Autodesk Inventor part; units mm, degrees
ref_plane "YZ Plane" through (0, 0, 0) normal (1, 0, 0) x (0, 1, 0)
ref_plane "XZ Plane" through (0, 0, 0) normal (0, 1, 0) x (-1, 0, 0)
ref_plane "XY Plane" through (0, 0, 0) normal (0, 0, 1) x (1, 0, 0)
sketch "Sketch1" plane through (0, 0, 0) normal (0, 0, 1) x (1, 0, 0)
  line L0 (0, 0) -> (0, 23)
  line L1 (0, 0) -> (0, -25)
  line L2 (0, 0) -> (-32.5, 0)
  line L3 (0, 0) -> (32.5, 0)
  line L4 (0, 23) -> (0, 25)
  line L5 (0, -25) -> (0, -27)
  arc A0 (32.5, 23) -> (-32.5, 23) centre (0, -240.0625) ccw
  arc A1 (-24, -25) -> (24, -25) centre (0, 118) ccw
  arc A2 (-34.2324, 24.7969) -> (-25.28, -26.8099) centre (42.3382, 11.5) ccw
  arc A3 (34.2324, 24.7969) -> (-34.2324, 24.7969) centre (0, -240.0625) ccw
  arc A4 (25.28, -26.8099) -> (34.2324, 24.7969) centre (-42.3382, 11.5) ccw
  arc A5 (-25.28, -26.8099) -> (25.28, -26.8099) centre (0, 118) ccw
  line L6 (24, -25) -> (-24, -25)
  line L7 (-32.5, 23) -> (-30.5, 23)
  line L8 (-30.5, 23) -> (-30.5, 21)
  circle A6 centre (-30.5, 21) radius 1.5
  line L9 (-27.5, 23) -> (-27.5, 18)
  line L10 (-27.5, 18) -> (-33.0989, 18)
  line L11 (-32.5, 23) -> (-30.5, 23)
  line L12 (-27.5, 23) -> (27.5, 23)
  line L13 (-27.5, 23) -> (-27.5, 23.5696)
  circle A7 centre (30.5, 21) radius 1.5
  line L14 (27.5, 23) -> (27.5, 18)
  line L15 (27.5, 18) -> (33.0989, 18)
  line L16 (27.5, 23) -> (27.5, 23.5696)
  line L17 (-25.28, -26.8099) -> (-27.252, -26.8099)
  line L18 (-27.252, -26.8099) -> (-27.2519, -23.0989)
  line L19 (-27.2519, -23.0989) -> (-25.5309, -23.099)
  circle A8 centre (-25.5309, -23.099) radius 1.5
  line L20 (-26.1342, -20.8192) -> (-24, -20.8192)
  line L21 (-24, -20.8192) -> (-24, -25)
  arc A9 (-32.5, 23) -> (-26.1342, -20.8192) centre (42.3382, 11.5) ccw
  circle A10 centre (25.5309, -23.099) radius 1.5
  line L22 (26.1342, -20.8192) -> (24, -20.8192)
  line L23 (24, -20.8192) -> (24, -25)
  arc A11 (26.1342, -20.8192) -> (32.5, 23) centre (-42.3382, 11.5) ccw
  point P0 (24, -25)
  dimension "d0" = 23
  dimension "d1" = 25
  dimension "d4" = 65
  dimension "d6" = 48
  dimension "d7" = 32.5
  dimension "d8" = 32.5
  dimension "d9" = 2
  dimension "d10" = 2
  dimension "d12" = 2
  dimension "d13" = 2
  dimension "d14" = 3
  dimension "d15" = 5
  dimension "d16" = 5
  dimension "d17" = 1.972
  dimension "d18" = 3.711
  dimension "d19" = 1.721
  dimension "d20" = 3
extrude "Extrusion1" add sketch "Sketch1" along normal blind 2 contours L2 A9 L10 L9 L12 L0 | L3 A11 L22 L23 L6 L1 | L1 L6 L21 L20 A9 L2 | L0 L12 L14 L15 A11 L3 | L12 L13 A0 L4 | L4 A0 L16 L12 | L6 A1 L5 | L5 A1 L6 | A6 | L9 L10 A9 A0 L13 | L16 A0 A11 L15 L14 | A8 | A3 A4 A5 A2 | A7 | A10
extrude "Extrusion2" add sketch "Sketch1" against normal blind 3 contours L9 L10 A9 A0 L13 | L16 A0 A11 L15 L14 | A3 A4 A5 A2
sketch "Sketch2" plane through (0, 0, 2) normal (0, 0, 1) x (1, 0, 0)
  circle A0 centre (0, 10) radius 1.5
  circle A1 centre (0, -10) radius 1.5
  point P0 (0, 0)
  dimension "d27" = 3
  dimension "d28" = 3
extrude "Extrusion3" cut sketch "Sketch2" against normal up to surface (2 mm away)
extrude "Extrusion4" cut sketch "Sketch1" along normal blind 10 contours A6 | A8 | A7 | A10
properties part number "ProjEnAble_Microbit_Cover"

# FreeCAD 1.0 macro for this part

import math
import FreeCAD as App
import Part
import Sketcher

V = App.Vector

doc = App.newDocument("Part")
body = doc.addObject("PartDesign::Body", "Body")

# Sketch on XY plane
sketch1 = body.newObject("Sketcher::SketchObject", "Sketch")
sketch1.AttachmentSupport = (doc.getObject("XY_Plane"), [""])
sketch1.MapMode = "FlatFace"
sketch1.addGeometry([
    Part.ArcOfCircle(Part.Circle(V(0, -240.0625, 0), V(0, 0, 1), 267.062463), math.radians(82.635494), math.radians(97.364506)),  # 0
    Part.ArcOfCircle(Part.Circle(V(42.3382, 11.5, 0), V(0, 0, 1), 77.716564), math.radians(170.148521), math.radians(206.435708)),  # 1
    Part.ArcOfCircle(Part.Circle(V(42.3382, 11.5, 0), V(0, 0, 1), 77.716564), math.radians(-153.564292), math.radians(-150.465759)),  # 2
    Part.ArcOfCircle(Part.Circle(V(0, 118, 0), V(0, 0, 1), 146.999951), math.radians(-99.902544), math.radians(-80.097456)),  # 3
    Part.ArcOfCircle(Part.Circle(V(-42.3382, 11.5, 0), V(0, 0, 1), 77.716597), math.radians(-29.534241), math.radians(9.851479)),  # 4
], False)
sketch1.addConstraint([
    Sketcher.Constraint("Coincident", 0, 2, 1, 1),
    Sketcher.Constraint("Tangent", 1, 2, 2, 1),
    Sketcher.Constraint("Coincident", 2, 2, 3, 1),
    Sketcher.Constraint("Coincident", 3, 2, 4, 1),
    Sketcher.Constraint("Coincident", 4, 2, 0, 1),
    Sketcher.Constraint("Equal", 1, 2),
    Sketcher.Constraint("Equal", 2, 4),
    Sketcher.Constraint("Symmetric", 1, 3, 4, 3, -2),
    Sketcher.Constraint("PointOnObject", 0, 3, -2),
    Sketcher.Constraint("PointOnObject", 3, 3, -2),
    Sketcher.Constraint("Radius", 3, 147.0),
    Sketcher.Constraint("DistanceY", -1, 1, 3, 3, 118.0),
    Sketcher.Constraint("DistanceX", 1, 2, 2, 2, 1.972),
    Sketcher.Constraint("DistanceY", -1, 1, 1, 3, 11.5),
    Sketcher.Constraint("Radius", 0, 267.0625),
    Sketcher.Constraint("Radius", 1, 77.7166),
    Sketcher.Constraint("DistanceX", 2, 2, -1, 1, 25.28),
    Sketcher.Constraint("DistanceY", -1, 1, 0, 2, 24.797),
])
pad1 = body.newObject("PartDesign::Pad", "Pad")
pad1.Profile = sketch1
pad1.Length = 2

# Sketch on XY plane
sketch2 = body.newObject("Sketcher::SketchObject", "Sketch001")
sketch2.AttachmentSupport = (doc.getObject("XY_Plane"), [""])
sketch2.MapMode = "FlatFace"
sketch2.addGeometry([
    Part.ArcOfCircle(Part.Circle(V(0, -240.0625, 0), V(0, 0, 1), 267.062463), math.radians(82.635494), math.radians(97.364506)),  # 0
    Part.ArcOfCircle(Part.Circle(V(42.3382, 11.5, 0), V(0, 0, 1), 77.716564), math.radians(170.148521), math.radians(206.435708)),  # 1
    Part.ArcOfCircle(Part.Circle(V(42.3382, 11.5, 0), V(0, 0, 1), 77.716564), math.radians(-153.564292), math.radians(-150.465759)),  # 2
    Part.ArcOfCircle(Part.Circle(V(0, 118, 0), V(0, 0, 1), 146.999951), math.radians(-99.902544), math.radians(-80.097456)),  # 3
    Part.ArcOfCircle(Part.Circle(V(-42.3382, 11.5, 0), V(0, 0, 1), 77.716597), math.radians(-29.534241), math.radians(9.851479)),  # 4
    Part.LineSegment(V(-27.5, 18, 0), V(-27.5, 23.5696, 0)),  # 5
    Part.ArcOfCircle(Part.Circle(V(0, -240.0625, 0), V(0, 0, 1), 265.0625), math.radians(84.044898), math.radians(95.955102)),  # 6
    Part.LineSegment(V(27.5, 23.5696, 0), V(27.5, 18, 0)),  # 7
    Part.LineSegment(V(27.5, 18, 0), V(33.0989, 18, 0)),  # 8
    Part.ArcOfCircle(Part.Circle(V(-42.3382, 11.5, 0), V(0, 0, 1), 75.716578), math.radians(-25.267466), math.radians(4.924699)),  # 9
    Part.LineSegment(V(26.1342, -20.8192, 0), V(24, -20.8192, 0)),  # 10
    Part.LineSegment(V(24, -20.8192, 0), V(24, -25, 0)),  # 11
    Part.ArcOfCircle(Part.Circle(V(0, 118, 0), V(0, 0, 1), 145), math.radians(-99.527283), math.radians(-80.472717)),  # 12
    Part.LineSegment(V(-24, -25, 0), V(-24, -20.8192, 0)),  # 13
    Part.LineSegment(V(-24, -20.8192, 0), V(-26.1342, -20.8192, 0)),  # 14
    Part.ArcOfCircle(Part.Circle(V(42.3382, 11.5, 0), V(0, 0, 1), 75.716618), math.radians(175.075301), math.radians(205.267466)),  # 15
    Part.LineSegment(V(-33.0989, 18, 0), V(-27.5, 18, 0)),  # 16
    Part.Circle(V(-30.5, 21, 0), V(0, 0, 1), 1.5),  # 17
    Part.Circle(V(-25.5309, -23.099, 0), V(0, 0, 1), 1.5),  # 18
    Part.Circle(V(25.5309, -23.099, 0), V(0, 0, 1), 1.5),  # 19
    Part.Circle(V(30.5, 21, 0), V(0, 0, 1), 1.5),  # 20
], False)
sketch2.addConstraint([
    Sketcher.Constraint("Coincident", 0, 2, 1, 1),
    Sketcher.Constraint("Tangent", 1, 2, 2, 1),
    Sketcher.Constraint("Coincident", 2, 2, 3, 1),
    Sketcher.Constraint("Coincident", 3, 2, 4, 1),
    Sketcher.Constraint("Coincident", 4, 2, 0, 1),
    Sketcher.Constraint("Coincident", 5, 2, 6, 2),
    Sketcher.Constraint("Coincident", 6, 1, 7, 1),
    Sketcher.Constraint("Coincident", 7, 2, 8, 1),
    Sketcher.Constraint("Coincident", 8, 2, 9, 2),
    Sketcher.Constraint("Coincident", 9, 1, 10, 1),
    Sketcher.Constraint("Coincident", 10, 2, 11, 1),
    Sketcher.Constraint("Coincident", 11, 2, 12, 2),
    Sketcher.Constraint("Coincident", 12, 1, 13, 1),
    Sketcher.Constraint("Coincident", 13, 2, 14, 1),
    Sketcher.Constraint("Coincident", 14, 2, 15, 2),
    Sketcher.Constraint("Coincident", 15, 1, 16, 1),
    Sketcher.Constraint("Coincident", 16, 2, 5, 1),
    Sketcher.Constraint("Vertical", 5),
    Sketcher.Constraint("Vertical", 7),
    Sketcher.Constraint("Horizontal", 8),
    Sketcher.Constraint("Horizontal", 10),
    Sketcher.Constraint("Vertical", 11),
    Sketcher.Constraint("Vertical", 13),
    Sketcher.Constraint("Horizontal", 14),
    Sketcher.Constraint("Horizontal", 16),
    Sketcher.Constraint("Coincident", 6, 3, 0, 3),
    Sketcher.Constraint("Coincident", 9, 3, 4, 3),
    Sketcher.Constraint("Coincident", 12, 3, 3, 3),
    Sketcher.Constraint("Coincident", 15, 3, 1, 3),
    Sketcher.Constraint("Equal", 1, 2),
    Sketcher.Constraint("Equal", 2, 4),
    Sketcher.Constraint("Equal", 9, 15),
    Sketcher.Constraint("Equal", 17, 18),
    Sketcher.Constraint("Equal", 18, 19),
    Sketcher.Constraint("Equal", 19, 20),
    Sketcher.Constraint("Symmetric", 1, 3, 4, 3, -2),
    Sketcher.Constraint("Symmetric", 18, 3, 19, 3, -2),
    Sketcher.Constraint("Symmetric", 17, 3, 20, 3, -2),
    Sketcher.Constraint("Symmetric", 5, 2, 6, 1, -2),
    Sketcher.Constraint("Symmetric", 11, 2, 12, 1, -2),
    Sketcher.Constraint("Horizontal", 19, 3, 1, 2),
    Sketcher.Constraint("Horizontal", 10, 2, 13, 2),
    Sketcher.Constraint("Horizontal", 8, 2, 15, 1),
    Sketcher.Constraint("Diameter", 17, 3.0),
    Sketcher.Constraint("DistanceY", 11, 2, -1, 1, 25.0),
    Sketcher.Constraint("Radius", 3, 147.0),
    Sketcher.Constraint("Radius", 12, 145.0),
    Sketcher.Constraint("DistanceX", 17, 3, 5, 2, 3.0),
    Sketcher.Constraint("DistanceY", 7, 2, 20, 3, 3.0),
    Sketcher.Constraint("DistanceY", -1, 1, 3, 3, 118.0),
    Sketcher.Constraint("DistanceY", -1, 1, 17, 3, 21.0),
    Sketcher.Constraint("DistanceX", 17, 3, 20, 3, 61.0),
    Sketcher.Constraint("DistanceX", 1, 2, 18, 3, 1.721),
    Sketcher.Constraint("DistanceY", 2, 2, 18, 3, 3.711),
    Sketcher.Constraint("DistanceY", -1, 1, 1, 3, 11.5),
    Sketcher.Constraint("Radius", 0, 267.0625),
    Sketcher.Constraint("Radius", 1, 77.7166),
    Sketcher.Constraint("Radius", 6, 265.0625),
    Sketcher.Constraint("Radius", 9, 75.7166),
    Sketcher.Constraint("DistanceX", 8, 1, 8, 2, 5.599),
    Sketcher.Constraint("DistanceX", 10, 2, 10, 1, 2.1342),
    Sketcher.Constraint("DistanceY", 5, 1, 5, 2, 5.5696),
])
pad2 = body.newObject("PartDesign::Pad", "Pad001")
pad2.Profile = sketch2
pad2.Length = 3
pad2.Reversed = True

# Sketch on XY plane
sketch3 = body.newObject("Sketcher::SketchObject", "Sketch002")
sketch3.AttachmentSupport = (doc.getObject("XY_Plane"), [""])
sketch3.MapMode = "FlatFace"
sketch3.AttachmentOffset = App.Placement(V(0, 0, 2), App.Rotation())
sketch3.addGeometry([
    Part.Circle(V(0, 10, 0), V(0, 0, 1), 1.5),
    Part.Circle(V(0, -10, 0), V(0, 0, 1), 1.5),
], False)
sketch3.addConstraint([
    Sketcher.Constraint("Equal", 0, 1),
    Sketcher.Constraint("Symmetric", 0, 3, 1, 3, -1, 1),
    Sketcher.Constraint("PointOnObject", 0, 3, -2),
    Sketcher.Constraint("Diameter", 0, 3.0),
    Sketcher.Constraint("DistanceY", -1, 1, 0, 3, 10.0),
])
pocket1 = body.newObject("PartDesign::Pocket", "Pocket")
pocket1.Profile = sketch3
pocket1.Length = 2

# Sketch on XY plane
sketch4 = body.newObject("Sketcher::SketchObject", "Sketch003")
sketch4.AttachmentSupport = (doc.getObject("XY_Plane"), [""])
sketch4.MapMode = "FlatFace"
sketch4.addGeometry([
    Part.Circle(V(-30.5, 21, 0), V(0, 0, 1), 1.5),
    Part.Circle(V(-25.5309, -23.099, 0), V(0, 0, 1), 1.5),
    Part.Circle(V(30.5, 21, 0), V(0, 0, 1), 1.5),
    Part.Circle(V(25.5309, -23.099, 0), V(0, 0, 1), 1.5),
], False)
sketch4.addConstraint([
    Sketcher.Constraint("Equal", 0, 1),
    Sketcher.Constraint("Equal", 1, 2),
    Sketcher.Constraint("Equal", 2, 3),
    Sketcher.Constraint("Symmetric", 0, 3, 2, 3, -2),
    Sketcher.Constraint("Symmetric", 1, 3, 3, 3, -2),
    Sketcher.Constraint("Diameter", 0, 3.0),
    Sketcher.Constraint("DistanceY", -1, 1, 0, 3, 21.0),
    Sketcher.Constraint("DistanceX", 0, 3, 2, 3, 61.0),
    Sketcher.Constraint("DistanceX", 1, 3, -1, 1, 25.531),
    Sketcher.Constraint("DistanceY", 1, 3, -1, 1, 23.099),
])
pocket2 = body.newObject("PartDesign::Pocket", "Pocket001")
pocket2.Profile = sketch4
pocket2.Length = 10
pocket2.Reversed = True

doc.recompute()
